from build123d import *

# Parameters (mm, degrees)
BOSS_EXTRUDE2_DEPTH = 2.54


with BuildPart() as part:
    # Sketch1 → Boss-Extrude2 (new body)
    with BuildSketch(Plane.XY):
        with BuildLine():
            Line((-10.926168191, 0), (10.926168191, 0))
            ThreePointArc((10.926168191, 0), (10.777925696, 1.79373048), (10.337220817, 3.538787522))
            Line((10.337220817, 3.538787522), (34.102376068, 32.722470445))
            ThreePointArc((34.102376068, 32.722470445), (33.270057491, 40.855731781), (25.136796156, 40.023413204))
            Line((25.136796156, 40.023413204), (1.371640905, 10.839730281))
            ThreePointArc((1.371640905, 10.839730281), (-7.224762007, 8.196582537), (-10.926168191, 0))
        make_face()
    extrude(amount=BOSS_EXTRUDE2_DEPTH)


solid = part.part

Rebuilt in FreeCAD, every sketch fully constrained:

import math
import FreeCAD as App
import Part
import Sketcher

doc = App.newDocument("Part")
params = doc.addObject("Spreadsheet::Sheet", "Params")
for row, (alias, value) in enumerate([
    ("pad1_length", "0.1 in"),
], start=1):
    params.set(f"A{row}", alias)
    params.set(f"B{row}", "=" + value)
    params.setAlias(f"B{row}", alias)

body = doc.addObject("PartDesign::Body", "Body")

# Sketch on XY plane
sketch1 = body.newObject("Sketcher::SketchObject", "Sketch")
sketch1.AttachmentSupport = (doc.getObject("XY_Plane"), [""])
sketch1.MapMode = "FlatFace"
sketch1.addGeometry(Part.LineSegment(App.Vector(-10.9, 0, 0), App.Vector(10.9, 0, 0)), False)
sketch1.addGeometry(Part.ArcOfCircle(Part.Circle(App.Vector(0, 0, 0), App.Vector(0, 0, 1), 10.9), math.radians(0), math.radians(18.9)), False)
sketch1.addGeometry(Part.LineSegment(App.Vector(10.3, 3.5, 0), App.Vector(34.1, 32.7, 0)), False)
sketch1.addGeometry(Part.ArcOfCircle(Part.Circle(App.Vector(29.6, 36.4, 0), App.Vector(0, 0, 1), 5.8), math.radians(-39), math.radians(141)), False)
sketch1.addGeometry(Part.LineSegment(App.Vector(25.1, 40, 0), App.Vector(1.4, 10.8, 0)), False)
sketch1.addGeometry(Part.ArcOfCircle(Part.Circle(App.Vector(0, 0, 0), App.Vector(0, 0, 1), 10.9), math.radians(83), math.radians(180)), False)
sketch1.addConstraint(Sketcher.Constraint("Coincident", 0, 2, 1, 1))
sketch1.addConstraint(Sketcher.Constraint("Coincident", 1, 2, 2, 1))
sketch1.addConstraint(Sketcher.Constraint("Tangent", 2, 2, 3, 1))
sketch1.addConstraint(Sketcher.Constraint("Tangent", 3, 2, 4, 1))
sketch1.addConstraint(Sketcher.Constraint("Coincident", 4, 2, 5, 1))
sketch1.addConstraint(Sketcher.Constraint("Coincident", 5, 2, 0, 1))
sketch1.addConstraint(Sketcher.Constraint("Horizontal", 0))
sketch1.addConstraint(Sketcher.Constraint("Coincident", 1, 3, -1, 1))
sketch1.addConstraint(Sketcher.Constraint("Coincident", 5, 3, -1, 1))
sketch1.addConstraint(Sketcher.Constraint("Equal", 1, 5))
sketch1.addConstraint(Sketcher.Constraint("PointOnObject", 0, 2, -1))
sketch1.addConstraint(Sketcher.Constraint("Parallel", 2, 4))
sketch1.addConstraint(Sketcher.Constraint("Equal", 2, 4))
sketch1.addConstraint(Sketcher.Constraint("Radius", 1, 10.926168))
sketch1.addConstraint(Sketcher.Constraint("Radius", 3, 5.78112))
sketch1.addConstraint(Sketcher.Constraint("Distance", 2, 37.636019))
sketch1.addConstraint(Sketcher.Constraint("DistanceY", -1, 1, 3, 3, 36.372942))
pad1 = body.newObject("PartDesign::Pad", "Pad")
pad1.Profile = sketch1
pad1.setExpression("Length", "Params.pad1_length")

doc.recompute()
